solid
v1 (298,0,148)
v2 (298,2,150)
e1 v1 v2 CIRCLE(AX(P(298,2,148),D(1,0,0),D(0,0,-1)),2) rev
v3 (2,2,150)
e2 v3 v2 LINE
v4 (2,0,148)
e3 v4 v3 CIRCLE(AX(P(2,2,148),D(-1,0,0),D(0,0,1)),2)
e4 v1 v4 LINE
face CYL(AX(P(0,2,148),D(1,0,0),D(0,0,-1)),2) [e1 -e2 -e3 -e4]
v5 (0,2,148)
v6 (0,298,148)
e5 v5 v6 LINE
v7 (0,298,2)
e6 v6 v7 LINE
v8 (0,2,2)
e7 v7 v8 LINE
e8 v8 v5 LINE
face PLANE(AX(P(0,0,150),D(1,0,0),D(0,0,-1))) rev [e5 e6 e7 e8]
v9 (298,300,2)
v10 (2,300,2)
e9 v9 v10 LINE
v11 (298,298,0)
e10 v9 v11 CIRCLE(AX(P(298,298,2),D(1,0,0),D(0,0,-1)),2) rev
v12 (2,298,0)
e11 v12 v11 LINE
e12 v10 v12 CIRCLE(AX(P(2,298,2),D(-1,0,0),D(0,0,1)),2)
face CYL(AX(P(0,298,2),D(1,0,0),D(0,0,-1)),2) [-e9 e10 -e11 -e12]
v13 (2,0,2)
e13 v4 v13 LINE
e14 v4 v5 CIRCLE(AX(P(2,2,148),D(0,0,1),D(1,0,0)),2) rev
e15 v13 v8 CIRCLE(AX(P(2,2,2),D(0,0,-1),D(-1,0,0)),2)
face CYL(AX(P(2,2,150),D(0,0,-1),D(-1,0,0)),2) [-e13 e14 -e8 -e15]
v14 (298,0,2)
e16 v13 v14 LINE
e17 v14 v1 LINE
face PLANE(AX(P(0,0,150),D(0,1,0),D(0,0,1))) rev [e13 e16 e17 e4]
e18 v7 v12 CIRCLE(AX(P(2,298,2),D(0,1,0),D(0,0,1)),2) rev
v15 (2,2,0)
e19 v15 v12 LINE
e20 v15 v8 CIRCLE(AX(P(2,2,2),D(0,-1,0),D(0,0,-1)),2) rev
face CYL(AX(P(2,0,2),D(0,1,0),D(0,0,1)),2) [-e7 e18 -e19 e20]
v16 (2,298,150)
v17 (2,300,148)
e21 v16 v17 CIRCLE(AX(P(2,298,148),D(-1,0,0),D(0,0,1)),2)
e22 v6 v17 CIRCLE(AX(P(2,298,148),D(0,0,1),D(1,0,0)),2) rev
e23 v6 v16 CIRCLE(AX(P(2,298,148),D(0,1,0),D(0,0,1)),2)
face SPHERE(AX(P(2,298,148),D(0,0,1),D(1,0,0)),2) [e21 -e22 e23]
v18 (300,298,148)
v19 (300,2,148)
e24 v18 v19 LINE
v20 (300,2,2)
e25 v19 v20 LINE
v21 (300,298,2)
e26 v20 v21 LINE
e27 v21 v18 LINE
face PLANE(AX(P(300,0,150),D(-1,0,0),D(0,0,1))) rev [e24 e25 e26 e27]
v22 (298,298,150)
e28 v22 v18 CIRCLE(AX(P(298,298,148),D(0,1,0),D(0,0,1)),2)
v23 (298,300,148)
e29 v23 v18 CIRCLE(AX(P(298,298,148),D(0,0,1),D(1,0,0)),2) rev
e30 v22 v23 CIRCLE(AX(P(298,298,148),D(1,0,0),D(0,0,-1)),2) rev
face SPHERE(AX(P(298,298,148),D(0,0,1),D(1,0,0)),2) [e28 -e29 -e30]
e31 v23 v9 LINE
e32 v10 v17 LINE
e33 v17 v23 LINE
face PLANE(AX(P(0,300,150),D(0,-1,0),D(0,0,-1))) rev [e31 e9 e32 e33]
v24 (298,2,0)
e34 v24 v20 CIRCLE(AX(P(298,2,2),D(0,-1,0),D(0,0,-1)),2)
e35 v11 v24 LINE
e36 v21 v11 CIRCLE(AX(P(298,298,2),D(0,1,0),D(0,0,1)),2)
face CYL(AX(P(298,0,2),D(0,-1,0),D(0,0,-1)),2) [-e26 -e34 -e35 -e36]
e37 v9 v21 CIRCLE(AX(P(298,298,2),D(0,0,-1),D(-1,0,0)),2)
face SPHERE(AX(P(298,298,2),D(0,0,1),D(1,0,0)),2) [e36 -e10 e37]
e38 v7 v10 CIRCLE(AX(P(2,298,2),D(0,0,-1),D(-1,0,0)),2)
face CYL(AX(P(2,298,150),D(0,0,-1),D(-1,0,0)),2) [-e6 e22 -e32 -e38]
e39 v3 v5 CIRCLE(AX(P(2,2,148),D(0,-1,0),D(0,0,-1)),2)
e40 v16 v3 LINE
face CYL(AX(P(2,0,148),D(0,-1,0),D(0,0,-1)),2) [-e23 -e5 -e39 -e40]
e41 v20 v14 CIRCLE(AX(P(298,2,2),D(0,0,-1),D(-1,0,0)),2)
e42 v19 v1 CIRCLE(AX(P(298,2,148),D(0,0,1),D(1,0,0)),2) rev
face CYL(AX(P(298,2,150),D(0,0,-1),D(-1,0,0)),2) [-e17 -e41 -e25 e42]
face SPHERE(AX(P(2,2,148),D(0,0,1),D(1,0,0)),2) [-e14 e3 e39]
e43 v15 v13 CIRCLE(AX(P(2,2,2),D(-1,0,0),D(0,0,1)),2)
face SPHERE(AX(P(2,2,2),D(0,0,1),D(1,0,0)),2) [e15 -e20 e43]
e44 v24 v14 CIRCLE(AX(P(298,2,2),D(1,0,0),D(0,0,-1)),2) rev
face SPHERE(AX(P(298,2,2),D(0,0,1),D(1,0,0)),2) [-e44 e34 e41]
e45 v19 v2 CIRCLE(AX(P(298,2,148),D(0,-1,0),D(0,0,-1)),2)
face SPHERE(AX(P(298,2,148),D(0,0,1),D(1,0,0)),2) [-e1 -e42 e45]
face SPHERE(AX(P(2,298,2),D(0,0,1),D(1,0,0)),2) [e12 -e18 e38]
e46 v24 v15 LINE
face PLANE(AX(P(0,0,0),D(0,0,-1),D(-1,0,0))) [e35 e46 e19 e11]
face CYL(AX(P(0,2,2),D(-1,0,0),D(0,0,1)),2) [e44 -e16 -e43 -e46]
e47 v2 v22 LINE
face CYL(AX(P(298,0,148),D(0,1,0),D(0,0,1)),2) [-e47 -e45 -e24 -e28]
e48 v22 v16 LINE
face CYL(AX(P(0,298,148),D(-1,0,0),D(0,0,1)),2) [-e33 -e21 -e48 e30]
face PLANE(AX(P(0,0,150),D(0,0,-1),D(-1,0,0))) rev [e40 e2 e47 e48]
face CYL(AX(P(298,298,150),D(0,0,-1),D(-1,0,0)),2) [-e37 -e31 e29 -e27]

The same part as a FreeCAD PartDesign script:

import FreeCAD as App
import Part
import Sketcher
Q = App.Units.Quantity


def add_polygon(sketch, points):
    """Adds a closed chain of lines whose ends are joined by coincident constraints."""
    first, n = sketch.GeometryCount, len(points)
    for a, b in zip(points, points[1:] + points[:1]):
        sketch.addGeometry(Part.LineSegment(App.Vector(*a, 0), App.Vector(*b, 0)), False)
    for i in range(n):
        sketch.addConstraint(Sketcher.Constraint("Coincident", first + i, 2, first + (i + 1) % n, 1))

doc = App.newDocument("Part")
body = doc.addObject("PartDesign::Body", "Body")

# Sketch on XY plane
sketch1 = body.newObject("Sketcher::SketchObject", "Sketch")
sketch1.AttachmentSupport = (doc.getObject("XY_Plane"), [""])
sketch1.MapMode = "FlatFace"
add_polygon(sketch1, [(0, 300), (0, 0), (300, 0), (300, 300)])  # lines 0-3
sketch1.addConstraint([
    Sketcher.Constraint("Vertical", 0),
    Sketcher.Constraint("Horizontal", 1),
    Sketcher.Constraint("Vertical", 2),
    Sketcher.Constraint("Horizontal", 3),
    Sketcher.Constraint("Coincident", 0, 2, -1, 1),
    Sketcher.Constraint("Equal", 3, 0),
    Sketcher.Constraint("DistanceX", 1, 1, 1, 2, Q("300 mm")),
])
pad1 = body.newObject("PartDesign::Pad", "Pad")
pad1.Profile = sketch1
pad1.Length = 150
doc.recompute()

fillet = body.newObject("PartDesign::Fillet", "Fillet")
fillet.Base = (pad1, ["Edge1"])
fillet.UseAllEdges = True
fillet.Radius = 2

doc.recompute()
